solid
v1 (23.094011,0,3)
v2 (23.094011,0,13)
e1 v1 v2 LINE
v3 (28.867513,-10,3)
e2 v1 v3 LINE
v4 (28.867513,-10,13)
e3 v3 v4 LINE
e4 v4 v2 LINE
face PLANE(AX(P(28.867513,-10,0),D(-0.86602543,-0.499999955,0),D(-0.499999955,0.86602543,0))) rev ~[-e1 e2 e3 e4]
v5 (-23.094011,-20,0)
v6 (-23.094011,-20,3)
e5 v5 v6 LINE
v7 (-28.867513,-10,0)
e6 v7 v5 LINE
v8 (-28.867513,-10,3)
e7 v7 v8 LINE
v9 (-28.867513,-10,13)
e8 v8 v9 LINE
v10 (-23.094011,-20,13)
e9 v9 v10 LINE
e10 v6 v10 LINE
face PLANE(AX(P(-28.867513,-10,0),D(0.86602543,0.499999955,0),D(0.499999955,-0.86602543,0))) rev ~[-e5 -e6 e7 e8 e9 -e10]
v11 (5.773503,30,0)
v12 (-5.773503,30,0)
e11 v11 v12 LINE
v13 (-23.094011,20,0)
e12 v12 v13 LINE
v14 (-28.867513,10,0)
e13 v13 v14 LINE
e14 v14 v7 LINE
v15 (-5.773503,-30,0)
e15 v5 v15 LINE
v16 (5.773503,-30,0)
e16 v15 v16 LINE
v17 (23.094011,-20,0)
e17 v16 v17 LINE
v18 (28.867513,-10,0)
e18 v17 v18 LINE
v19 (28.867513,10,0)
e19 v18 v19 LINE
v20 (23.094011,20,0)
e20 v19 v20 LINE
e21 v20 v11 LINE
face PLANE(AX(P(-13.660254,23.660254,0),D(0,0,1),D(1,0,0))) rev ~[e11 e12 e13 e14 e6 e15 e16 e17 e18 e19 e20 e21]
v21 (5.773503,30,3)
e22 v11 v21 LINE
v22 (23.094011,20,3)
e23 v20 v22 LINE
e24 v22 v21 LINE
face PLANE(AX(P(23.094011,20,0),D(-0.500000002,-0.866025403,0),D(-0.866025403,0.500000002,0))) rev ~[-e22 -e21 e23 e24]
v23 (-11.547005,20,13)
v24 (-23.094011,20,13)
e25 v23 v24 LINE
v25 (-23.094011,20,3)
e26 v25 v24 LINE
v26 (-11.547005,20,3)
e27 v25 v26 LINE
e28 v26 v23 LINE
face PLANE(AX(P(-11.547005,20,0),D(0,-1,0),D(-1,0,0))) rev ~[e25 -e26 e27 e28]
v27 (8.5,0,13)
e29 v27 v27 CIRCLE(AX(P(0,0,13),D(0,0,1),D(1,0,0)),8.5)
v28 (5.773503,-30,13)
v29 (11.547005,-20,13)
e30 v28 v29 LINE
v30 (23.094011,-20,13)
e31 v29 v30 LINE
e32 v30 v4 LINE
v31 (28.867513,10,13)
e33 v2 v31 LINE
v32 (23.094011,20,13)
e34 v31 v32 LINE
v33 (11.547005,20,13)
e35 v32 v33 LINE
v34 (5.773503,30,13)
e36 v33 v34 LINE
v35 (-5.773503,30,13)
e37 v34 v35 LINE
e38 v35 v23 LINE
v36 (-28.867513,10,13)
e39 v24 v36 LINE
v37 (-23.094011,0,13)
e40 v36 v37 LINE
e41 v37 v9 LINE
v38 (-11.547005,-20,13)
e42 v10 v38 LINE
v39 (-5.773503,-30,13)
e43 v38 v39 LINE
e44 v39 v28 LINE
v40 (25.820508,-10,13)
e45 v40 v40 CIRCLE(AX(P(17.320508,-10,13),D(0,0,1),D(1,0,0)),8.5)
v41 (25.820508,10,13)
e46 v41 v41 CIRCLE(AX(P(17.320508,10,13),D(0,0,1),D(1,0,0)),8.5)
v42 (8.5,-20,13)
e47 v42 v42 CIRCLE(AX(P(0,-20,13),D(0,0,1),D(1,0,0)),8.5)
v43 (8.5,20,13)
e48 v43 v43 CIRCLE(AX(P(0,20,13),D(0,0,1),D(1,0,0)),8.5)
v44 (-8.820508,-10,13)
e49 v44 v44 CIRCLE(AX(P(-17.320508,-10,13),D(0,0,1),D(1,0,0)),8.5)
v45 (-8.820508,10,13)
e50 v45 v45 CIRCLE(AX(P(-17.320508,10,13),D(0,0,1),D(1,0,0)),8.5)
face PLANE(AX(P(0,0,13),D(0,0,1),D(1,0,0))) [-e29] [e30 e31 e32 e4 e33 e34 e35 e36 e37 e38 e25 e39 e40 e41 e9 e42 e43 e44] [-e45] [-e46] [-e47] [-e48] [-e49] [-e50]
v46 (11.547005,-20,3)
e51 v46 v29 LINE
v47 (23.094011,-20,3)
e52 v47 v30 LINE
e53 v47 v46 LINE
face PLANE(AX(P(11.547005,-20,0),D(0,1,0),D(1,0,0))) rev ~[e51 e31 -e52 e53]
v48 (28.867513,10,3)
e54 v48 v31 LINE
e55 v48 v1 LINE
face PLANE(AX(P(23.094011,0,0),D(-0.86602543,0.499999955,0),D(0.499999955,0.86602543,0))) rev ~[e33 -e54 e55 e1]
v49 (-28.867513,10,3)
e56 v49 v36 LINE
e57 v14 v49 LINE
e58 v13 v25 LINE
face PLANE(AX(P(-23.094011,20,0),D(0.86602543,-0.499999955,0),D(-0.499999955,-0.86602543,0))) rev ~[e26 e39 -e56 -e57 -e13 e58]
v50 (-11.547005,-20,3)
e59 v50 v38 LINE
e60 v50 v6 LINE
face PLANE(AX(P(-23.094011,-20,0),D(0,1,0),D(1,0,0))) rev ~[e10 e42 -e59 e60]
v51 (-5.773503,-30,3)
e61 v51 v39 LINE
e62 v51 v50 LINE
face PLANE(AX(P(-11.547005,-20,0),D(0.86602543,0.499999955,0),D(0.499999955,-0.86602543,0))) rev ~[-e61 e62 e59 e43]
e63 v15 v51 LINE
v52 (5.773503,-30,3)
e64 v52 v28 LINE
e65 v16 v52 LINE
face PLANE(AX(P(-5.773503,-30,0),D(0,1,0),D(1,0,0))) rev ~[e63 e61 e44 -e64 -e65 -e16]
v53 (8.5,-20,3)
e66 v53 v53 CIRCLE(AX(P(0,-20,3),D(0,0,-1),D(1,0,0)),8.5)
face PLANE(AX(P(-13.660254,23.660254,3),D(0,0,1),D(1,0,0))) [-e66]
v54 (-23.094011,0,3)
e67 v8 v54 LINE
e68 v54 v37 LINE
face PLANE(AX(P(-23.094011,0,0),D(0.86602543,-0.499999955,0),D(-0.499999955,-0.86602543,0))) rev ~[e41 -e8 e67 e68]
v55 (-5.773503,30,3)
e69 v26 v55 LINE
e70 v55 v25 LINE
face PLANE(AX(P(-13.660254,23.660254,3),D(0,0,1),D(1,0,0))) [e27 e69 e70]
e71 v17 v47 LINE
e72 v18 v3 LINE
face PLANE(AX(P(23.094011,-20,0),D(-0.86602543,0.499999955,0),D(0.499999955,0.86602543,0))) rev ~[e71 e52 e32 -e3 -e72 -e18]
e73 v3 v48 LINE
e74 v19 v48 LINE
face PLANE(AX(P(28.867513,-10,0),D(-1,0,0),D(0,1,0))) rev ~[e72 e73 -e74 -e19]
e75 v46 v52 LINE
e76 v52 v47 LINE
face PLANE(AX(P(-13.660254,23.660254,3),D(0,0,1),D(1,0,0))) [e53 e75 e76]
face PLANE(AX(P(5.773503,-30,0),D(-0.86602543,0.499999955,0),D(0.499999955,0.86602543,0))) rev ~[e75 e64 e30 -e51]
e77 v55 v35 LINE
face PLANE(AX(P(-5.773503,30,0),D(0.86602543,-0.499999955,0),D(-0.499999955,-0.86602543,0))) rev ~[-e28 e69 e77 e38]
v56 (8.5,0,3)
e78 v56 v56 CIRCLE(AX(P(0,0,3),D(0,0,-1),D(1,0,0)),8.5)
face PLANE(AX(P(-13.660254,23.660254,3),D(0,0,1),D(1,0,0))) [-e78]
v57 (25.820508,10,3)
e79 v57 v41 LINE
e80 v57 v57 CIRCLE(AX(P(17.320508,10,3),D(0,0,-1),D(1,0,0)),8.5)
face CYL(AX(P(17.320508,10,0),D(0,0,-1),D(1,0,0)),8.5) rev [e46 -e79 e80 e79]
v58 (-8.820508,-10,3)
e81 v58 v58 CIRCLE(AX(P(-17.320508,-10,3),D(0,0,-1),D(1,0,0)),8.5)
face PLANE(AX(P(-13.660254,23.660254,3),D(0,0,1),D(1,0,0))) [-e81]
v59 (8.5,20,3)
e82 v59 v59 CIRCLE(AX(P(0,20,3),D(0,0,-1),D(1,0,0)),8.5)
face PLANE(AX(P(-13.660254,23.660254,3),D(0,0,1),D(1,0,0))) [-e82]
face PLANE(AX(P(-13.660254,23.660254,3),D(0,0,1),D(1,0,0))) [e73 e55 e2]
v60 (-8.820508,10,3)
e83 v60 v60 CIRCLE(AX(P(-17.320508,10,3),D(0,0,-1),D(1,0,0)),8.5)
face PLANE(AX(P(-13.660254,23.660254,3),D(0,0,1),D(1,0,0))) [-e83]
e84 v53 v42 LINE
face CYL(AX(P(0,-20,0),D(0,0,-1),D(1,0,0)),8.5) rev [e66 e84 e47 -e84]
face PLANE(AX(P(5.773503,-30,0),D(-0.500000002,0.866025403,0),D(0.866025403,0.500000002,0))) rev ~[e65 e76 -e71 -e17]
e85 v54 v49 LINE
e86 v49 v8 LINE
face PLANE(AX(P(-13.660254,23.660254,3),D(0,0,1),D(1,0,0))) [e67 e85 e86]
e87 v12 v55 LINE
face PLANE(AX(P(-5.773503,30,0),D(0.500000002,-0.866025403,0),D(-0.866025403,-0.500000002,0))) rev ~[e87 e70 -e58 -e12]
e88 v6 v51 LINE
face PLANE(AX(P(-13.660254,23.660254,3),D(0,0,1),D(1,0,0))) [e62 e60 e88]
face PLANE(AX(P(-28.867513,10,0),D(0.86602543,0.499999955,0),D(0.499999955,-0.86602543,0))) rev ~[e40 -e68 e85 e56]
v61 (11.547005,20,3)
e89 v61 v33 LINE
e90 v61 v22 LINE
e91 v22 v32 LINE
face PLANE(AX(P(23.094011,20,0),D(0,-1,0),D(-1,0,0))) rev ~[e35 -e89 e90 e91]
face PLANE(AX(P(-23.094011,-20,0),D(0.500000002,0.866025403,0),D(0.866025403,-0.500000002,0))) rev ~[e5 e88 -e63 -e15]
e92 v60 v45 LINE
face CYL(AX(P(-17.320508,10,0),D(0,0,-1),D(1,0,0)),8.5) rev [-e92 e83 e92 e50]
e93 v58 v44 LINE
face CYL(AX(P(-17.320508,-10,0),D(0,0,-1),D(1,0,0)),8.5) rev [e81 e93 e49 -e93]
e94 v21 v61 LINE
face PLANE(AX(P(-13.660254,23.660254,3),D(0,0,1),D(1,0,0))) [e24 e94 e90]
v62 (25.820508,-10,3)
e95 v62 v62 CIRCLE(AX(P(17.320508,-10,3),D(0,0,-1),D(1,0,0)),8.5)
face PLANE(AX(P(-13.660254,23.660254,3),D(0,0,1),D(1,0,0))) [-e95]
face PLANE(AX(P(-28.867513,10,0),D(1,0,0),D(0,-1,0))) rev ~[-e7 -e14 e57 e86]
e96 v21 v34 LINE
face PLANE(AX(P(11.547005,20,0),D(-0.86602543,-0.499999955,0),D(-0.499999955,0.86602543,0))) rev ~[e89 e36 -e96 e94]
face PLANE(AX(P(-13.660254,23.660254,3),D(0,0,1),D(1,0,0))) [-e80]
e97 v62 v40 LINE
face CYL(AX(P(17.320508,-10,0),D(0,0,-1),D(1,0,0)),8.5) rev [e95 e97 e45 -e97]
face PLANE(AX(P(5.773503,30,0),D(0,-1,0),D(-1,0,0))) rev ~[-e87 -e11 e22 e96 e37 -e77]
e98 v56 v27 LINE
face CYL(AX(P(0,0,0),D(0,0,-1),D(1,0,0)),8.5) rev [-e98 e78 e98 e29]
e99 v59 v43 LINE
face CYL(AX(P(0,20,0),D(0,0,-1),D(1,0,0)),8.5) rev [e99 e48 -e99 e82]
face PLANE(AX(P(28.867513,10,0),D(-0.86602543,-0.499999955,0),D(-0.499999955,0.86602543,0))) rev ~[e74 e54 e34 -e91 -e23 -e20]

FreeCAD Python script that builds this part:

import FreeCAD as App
import Part
import Sketcher
Q = App.Units.Quantity


def add_polygon(sketch, points):
    """Adds a closed chain of lines whose ends are joined by coincident constraints."""
    first, n = sketch.GeometryCount, len(points)
    for a, b in zip(points, points[1:] + points[:1]):
        sketch.addGeometry(Part.LineSegment(App.Vector(*a, 0), App.Vector(*b, 0)), False)
    for i in range(n):
        sketch.addConstraint(Sketcher.Constraint("Coincident", first + i, 2, first + (i + 1) % n, 1))

doc = App.newDocument("Part")
body = doc.addObject("PartDesign::Body", "Body")

# Sketch on XY plane
sketch1 = body.newObject("Sketcher::SketchObject", "Sketch")
sketch1.AttachmentSupport = (doc.getObject("XY_Plane"), [""])
sketch1.MapMode = "FlatFace"
add_polygon(sketch1, [(-5.773503, 30), (-23.094011, 20), (-28.867513, 10), (-28.867513, -10), (-23.094011, -20), (-5.773503, -30), (5.773503, -30), (23.094011, -20), (28.867513, -10), (28.867513, 10), (23.094011, 20), (5.773503, 30)])  # lines 0-11
sketch1.addConstraint([
    Sketcher.Constraint("Vertical", 2),
    Sketcher.Constraint("Horizontal", 5),
    Sketcher.Constraint("Vertical", 8),
    Sketcher.Constraint("Horizontal", 11),
    Sketcher.Constraint("Symmetric", 0, 2, 6, 2, -1, 1),
    Sketcher.Constraint("Symmetric", 1, 2, 7, 2, -1, 1),
    Sketcher.Constraint("Symmetric", 3, 2, 9, 2, -1, 1),
    Sketcher.Constraint("Symmetric", 4, 2, 10, 2, -1, 1),
    Sketcher.Constraint("Symmetric", 3, 2, 6, 2, -2),
    Sketcher.Constraint("Perpendicular", 0, 3),
    Sketcher.Constraint("Perpendicular", 1, 4),
    Sketcher.Constraint("Perpendicular", 3, 6),
    Sketcher.Constraint("Perpendicular", 6, 9),
    Sketcher.Constraint("Horizontal", 2, 2, 7, 2),
    Sketcher.Constraint("DistanceY", 2, 2, 2, 1, Q("20 mm")),
    Sketcher.Constraint("Angle", 0, Q("-150 deg")),
    Sketcher.Constraint("Distance", 0, Q("20 mm")),
    Sketcher.Constraint("DistanceY", -1, 1, 0, 2, Q("20 mm")),
    Sketcher.Constraint("DistanceX", 5, 1, 5, 2, Q("11.547006 mm")),
])
pad1 = body.newObject("PartDesign::Pad", "Pad")
pad1.Profile = sketch1
pad1.Length = 3

# Sketch on XY plane
sketch2 = body.newObject("Sketcher::SketchObject", "Sketch001")
sketch2.AttachmentSupport = (doc.getObject("XY_Plane"), [""])
sketch2.MapMode = "FlatFace"
add_polygon(sketch2, [(28.867513, -10), (23.094011, 0), (28.867513, 10), (23.094011, 20), (11.547005, 20), (5.773503, 30), (-5.773503, 30), (-11.547005, 20), (-23.094011, 20), (-28.867513, 10), (-23.094011, 0), (-28.867513, -10), (-23.094011, -20), (-11.547005, -20), (-5.773503, -30), (5.773503, -30), (11.547005, -20), (23.094011, -20)])  # lines 0-17
sketch2.addGeometry(Part.Circle(App.Vector(-17.320508, -10, 0), App.Vector(0, 0, 1), 8.5), False)  # 18
sketch2.addGeometry(Part.Circle(App.Vector(0, -20, 0), App.Vector(0, 0, 1), 8.5), False)  # 19
sketch2.addGeometry(Part.Circle(App.Vector(17.320508, -10, 0), App.Vector(0, 0, 1), 8.5), False)  # 20
sketch2.addGeometry(Part.Circle(App.Vector(-17.320508, 10, 0), App.Vector(0, 0, 1), 8.5), False)  # 21
sketch2.addGeometry(Part.Circle(App.Vector(0, 0, 0), App.Vector(0, 0, 1), 8.5), False)  # 22
sketch2.addGeometry(Part.Circle(App.Vector(17.320508, 10, 0), App.Vector(0, 0, 1), 8.5), False)  # 23
sketch2.addGeometry(Part.Circle(App.Vector(0, 20, 0), App.Vector(0, 0, 1), 8.5), False)  # 24
sketch2.addConstraint([
    Sketcher.Constraint("Horizontal", 3),
    Sketcher.Constraint("Horizontal", 5),
    Sketcher.Constraint("Horizontal", 7),
    Sketcher.Constraint("Horizontal", 12),
    Sketcher.Constraint("Horizontal", 14),
    Sketcher.Constraint("Horizontal", 16),
    Sketcher.Constraint("Coincident", 22, 3, -1, 1),
    Sketcher.Constraint("Equal", 18, 19),
    Sketcher.Constraint("Equal", 19, 20),
    Sketcher.Constraint("Equal", 20, 21),
    Sketcher.Constraint("Equal", 21, 22),
    Sketcher.Constraint("Equal", 22, 23),
    Sketcher.Constraint("Equal", 23, 24),
    Sketcher.Constraint("Symmetric", 20, 3, 21, 3, -1, 1),
    Sketcher.Constraint("Symmetric", 18, 3, 23, 3, -1, 1),
    Sketcher.Constraint("Symmetric", 19, 3, 24, 3, -1, 1),
    Sketcher.Constraint("Symmetric", 0, 2, 9, 2, -1, 1),
    Sketcher.Constraint("Symmetric", 1, 2, 10, 2, -1, 1),
    Sketcher.Constraint("Symmetric", 2, 2, 11, 2, -1, 1),
    Sketcher.Constraint("Symmetric", 4, 2, 13, 2, -1, 1),
    Sketcher.Constraint("Symmetric", 6, 2, 15, 2, -1, 1),
    Sketcher.Constraint("Symmetric", 8, 2, 17, 2, -1, 1),
    Sketcher.Constraint("Symmetric", 18, 3, 20, 3, -2),
    Sketcher.Constraint("Symmetric", 3, 2, 6, 2, -2),
    Sketcher.Constraint("Symmetric", 1, 2, 8, 2, -2),
    Sketcher.Constraint("PointOnObject", 19, 3, -2),
    Sketcher.Constraint("PointOnObject", 0, 2, -1),
    Sketcher.Constraint("Parallel", 0, 2),
    Sketcher.Constraint("Parallel", 2, 4),
    Sketcher.Constraint("Parallel", 1, 6),
    Sketcher.Constraint("Parallel", 6, 8),
    Sketcher.Constraint("Parallel", 11, 13),
    Sketcher.Constraint("Parallel", 10, 15),
    Sketcher.Constraint("Parallel", 15, 17),
    Sketcher.Constraint("Horizontal", 23, 3, 1, 2),
    Sketcher.Constraint("Horizontal", 24, 3, 2, 2),
    Sketcher.Constraint("Vertical", 0, 2, 2, 2),
    Sketcher.Constraint("Equal", 3, 5),
    Sketcher.Constraint("Equal", 2, 4),
    Sketcher.Constraint("Diameter", 18, Q("17 mm")),
    Sketcher.Constraint("Angle", 0, Q("119.999997 deg")),
    Sketcher.Constraint("DistanceY", 18, 3, -1, 1, Q("10 mm")),
    Sketcher.Constraint("DistanceX", 3, 2, 3, 1, Q("11.547006 mm")),
    Sketcher.Constraint("DistanceX", 18, 3, -1, 1, Q("17.320508 mm")),
])
pad2 = body.newObject("PartDesign::Pad", "Pad001")
pad2.Profile = sketch2
pad2.Length = 13

doc.recompute()
